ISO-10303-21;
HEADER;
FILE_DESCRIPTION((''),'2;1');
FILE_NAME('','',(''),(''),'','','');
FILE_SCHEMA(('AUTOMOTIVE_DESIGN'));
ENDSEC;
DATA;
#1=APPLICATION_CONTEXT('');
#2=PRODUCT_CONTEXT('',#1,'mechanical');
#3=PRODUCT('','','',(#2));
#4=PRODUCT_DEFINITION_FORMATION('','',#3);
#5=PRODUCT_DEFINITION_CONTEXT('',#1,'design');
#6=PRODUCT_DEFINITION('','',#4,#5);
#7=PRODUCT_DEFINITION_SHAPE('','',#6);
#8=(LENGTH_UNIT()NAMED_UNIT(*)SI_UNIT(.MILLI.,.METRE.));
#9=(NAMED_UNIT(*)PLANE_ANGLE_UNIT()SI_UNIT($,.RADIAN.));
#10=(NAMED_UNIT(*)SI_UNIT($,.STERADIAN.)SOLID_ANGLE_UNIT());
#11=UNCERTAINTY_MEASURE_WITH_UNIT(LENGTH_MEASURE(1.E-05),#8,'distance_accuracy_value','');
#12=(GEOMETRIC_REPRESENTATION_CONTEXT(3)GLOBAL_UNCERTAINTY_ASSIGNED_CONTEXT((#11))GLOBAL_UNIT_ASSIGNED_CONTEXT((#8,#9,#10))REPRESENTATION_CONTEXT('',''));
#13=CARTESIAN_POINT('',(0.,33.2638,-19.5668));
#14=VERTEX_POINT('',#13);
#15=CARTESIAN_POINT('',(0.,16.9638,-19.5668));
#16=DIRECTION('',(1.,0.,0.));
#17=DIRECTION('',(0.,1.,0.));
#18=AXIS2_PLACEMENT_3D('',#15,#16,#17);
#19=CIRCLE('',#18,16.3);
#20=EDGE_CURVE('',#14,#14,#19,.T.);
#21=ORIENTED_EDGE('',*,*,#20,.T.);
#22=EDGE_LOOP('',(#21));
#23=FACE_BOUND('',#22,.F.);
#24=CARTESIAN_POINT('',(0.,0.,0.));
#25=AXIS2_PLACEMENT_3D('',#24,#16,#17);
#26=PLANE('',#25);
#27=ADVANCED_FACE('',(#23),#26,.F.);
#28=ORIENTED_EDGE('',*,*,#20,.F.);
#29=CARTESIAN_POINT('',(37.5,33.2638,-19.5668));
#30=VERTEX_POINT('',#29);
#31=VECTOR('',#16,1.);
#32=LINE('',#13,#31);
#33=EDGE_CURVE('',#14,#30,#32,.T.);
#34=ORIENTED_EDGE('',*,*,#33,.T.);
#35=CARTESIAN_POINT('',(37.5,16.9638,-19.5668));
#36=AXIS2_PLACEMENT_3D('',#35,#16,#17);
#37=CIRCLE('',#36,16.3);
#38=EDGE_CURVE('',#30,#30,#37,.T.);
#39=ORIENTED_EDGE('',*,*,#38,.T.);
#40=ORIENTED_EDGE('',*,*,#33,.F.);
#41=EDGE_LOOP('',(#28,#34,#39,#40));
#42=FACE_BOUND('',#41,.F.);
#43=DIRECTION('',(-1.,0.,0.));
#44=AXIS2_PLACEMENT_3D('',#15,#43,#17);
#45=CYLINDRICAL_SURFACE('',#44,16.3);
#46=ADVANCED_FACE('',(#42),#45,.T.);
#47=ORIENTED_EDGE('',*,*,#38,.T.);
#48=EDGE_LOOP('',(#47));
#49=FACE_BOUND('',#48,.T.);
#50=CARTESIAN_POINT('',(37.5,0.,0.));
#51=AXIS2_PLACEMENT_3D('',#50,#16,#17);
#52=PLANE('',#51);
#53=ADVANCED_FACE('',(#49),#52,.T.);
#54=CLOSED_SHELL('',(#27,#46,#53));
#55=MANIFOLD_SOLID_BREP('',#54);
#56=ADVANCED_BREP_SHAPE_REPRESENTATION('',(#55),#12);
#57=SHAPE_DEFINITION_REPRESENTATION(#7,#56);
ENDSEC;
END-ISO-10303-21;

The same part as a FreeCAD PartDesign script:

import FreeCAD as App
import Part
import Sketcher
from FreeCAD import Vector

doc = App.newDocument("Part")
body = doc.addObject("PartDesign::Body", "Body")

# Sketch on YZ plane
sketch1 = body.newObject("Sketcher::SketchObject", "Sketch")
sketch1.AttachmentSupport = (doc.getObject("YZ_Plane"), [""])
sketch1.MapMode = "FlatFace"
sketch1.addGeometry(Part.Circle(Vector(16.9638, -19.5668, 0), Vector(0, 0, 1), 16.3), False)
sketch1.addConstraint([
    Sketcher.Constraint("Diameter", 0, 32.6),
    Sketcher.Constraint("DistanceX", -1, 1, 0, 3, 16.9638),
    Sketcher.Constraint("DistanceY", 0, 3, -1, 1, 19.5668),
])
pad1 = body.newObject("PartDesign::Pad", "Pad")
pad1.Profile = sketch1
pad1.Length = 37.5

doc.recompute()
